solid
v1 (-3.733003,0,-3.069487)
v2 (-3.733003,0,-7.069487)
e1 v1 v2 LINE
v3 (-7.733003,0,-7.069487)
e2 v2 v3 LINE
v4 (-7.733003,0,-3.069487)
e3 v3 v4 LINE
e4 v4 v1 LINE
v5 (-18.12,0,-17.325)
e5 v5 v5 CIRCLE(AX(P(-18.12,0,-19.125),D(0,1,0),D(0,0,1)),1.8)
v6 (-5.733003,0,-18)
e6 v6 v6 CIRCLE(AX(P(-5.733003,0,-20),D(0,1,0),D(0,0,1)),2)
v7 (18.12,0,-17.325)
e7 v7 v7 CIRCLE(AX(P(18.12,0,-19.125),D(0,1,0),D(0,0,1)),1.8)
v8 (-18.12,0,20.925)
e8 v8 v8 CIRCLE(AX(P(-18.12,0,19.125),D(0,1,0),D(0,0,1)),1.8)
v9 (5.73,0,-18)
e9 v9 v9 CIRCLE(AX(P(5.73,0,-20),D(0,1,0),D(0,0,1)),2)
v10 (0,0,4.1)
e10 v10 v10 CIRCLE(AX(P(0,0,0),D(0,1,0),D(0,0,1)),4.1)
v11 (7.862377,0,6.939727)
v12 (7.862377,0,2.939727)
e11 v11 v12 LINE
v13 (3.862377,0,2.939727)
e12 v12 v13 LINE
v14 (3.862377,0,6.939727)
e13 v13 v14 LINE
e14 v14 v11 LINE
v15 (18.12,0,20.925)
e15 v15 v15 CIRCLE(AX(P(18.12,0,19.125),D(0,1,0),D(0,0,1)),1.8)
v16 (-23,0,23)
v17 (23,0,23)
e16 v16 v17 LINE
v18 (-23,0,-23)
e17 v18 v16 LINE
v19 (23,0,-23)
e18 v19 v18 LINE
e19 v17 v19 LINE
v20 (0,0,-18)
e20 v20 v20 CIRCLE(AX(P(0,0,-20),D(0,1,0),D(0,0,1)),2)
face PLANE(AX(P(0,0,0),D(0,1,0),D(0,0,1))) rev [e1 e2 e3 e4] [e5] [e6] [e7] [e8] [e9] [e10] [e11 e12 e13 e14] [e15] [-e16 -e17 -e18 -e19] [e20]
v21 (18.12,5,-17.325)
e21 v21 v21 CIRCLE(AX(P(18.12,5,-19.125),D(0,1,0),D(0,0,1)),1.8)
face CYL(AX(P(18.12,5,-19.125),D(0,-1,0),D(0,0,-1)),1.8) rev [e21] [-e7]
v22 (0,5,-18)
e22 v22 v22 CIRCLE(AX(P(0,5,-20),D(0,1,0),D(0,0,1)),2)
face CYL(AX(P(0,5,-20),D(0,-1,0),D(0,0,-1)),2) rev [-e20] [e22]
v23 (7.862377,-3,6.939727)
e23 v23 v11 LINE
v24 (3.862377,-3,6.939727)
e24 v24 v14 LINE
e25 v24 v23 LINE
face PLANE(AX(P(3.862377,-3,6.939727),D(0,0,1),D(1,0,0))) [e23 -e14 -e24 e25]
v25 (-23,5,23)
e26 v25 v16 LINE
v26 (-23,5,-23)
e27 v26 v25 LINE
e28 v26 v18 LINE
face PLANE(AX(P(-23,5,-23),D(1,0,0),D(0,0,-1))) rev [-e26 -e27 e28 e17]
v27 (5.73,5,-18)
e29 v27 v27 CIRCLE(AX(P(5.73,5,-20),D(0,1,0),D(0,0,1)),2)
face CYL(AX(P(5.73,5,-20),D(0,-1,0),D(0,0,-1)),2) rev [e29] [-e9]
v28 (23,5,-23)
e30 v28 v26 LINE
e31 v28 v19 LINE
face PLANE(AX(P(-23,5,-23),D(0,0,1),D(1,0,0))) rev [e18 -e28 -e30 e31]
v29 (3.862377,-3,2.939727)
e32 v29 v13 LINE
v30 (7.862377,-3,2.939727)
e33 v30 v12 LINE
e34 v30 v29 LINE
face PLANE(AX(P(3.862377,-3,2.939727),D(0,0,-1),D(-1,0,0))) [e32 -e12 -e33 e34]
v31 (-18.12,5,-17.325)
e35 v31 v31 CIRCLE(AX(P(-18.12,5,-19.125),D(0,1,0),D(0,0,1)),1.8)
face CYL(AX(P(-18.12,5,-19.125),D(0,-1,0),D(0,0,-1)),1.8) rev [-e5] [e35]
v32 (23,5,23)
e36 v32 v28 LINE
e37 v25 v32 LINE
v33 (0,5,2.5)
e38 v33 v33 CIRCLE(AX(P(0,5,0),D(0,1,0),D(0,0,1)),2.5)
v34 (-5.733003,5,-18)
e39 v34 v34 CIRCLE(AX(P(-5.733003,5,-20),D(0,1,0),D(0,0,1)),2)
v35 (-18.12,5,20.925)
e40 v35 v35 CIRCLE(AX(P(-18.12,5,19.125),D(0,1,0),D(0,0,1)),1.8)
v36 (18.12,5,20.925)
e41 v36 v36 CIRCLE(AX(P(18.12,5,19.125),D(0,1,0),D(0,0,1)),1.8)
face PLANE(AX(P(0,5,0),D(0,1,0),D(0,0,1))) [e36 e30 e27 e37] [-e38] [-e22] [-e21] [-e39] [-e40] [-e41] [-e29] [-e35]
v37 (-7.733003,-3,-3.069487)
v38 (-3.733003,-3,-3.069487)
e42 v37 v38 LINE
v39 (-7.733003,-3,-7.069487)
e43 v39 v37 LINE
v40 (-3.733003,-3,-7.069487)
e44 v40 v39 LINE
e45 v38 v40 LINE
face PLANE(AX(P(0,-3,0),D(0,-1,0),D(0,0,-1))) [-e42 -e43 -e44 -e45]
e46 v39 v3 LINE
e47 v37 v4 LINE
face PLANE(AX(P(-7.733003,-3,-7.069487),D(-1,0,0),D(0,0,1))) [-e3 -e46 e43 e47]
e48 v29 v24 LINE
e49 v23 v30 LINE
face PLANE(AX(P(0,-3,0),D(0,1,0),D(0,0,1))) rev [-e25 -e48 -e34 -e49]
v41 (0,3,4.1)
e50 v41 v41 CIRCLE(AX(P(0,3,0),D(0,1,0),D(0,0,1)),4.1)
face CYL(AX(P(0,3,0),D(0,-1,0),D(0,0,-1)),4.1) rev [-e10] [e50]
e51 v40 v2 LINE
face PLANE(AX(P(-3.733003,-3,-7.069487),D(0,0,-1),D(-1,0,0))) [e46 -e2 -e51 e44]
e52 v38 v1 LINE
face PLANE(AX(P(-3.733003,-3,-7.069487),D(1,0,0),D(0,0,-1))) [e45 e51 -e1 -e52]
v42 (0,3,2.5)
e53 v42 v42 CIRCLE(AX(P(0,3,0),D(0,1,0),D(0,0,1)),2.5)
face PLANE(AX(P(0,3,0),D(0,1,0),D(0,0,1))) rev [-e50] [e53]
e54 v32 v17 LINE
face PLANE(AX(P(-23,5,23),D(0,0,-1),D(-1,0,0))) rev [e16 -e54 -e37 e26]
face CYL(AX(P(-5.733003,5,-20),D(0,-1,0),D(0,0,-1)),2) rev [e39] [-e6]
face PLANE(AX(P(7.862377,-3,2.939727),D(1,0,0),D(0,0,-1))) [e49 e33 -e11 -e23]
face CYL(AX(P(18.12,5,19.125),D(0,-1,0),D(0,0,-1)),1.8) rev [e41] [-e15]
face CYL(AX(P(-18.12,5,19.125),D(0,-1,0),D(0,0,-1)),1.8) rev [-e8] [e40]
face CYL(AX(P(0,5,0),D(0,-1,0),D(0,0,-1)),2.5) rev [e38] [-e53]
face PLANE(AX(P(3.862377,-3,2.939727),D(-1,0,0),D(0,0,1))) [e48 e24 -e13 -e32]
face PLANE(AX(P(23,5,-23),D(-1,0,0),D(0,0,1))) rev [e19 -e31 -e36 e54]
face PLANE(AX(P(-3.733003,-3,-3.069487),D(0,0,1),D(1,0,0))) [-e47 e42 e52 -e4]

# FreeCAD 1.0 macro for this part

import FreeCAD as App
import Part
import Sketcher


def add_polygon(sketch, points):
    """Adds a closed chain of lines whose ends are joined by coincident constraints."""
    first, n = sketch.GeometryCount, len(points)
    for a, b in zip(points, points[1:] + points[:1]):
        sketch.addGeometry(Part.LineSegment(App.Vector(*a, 0), App.Vector(*b, 0)), False)
    for i in range(n):
        sketch.addConstraint(Sketcher.Constraint("Coincident", first + i, 2, first + (i + 1) % n, 1))

doc = App.newDocument("Part")
body = doc.addObject("PartDesign::Body", "Body")

sketch1 = doc.addObject("Sketcher::SketchObject", "Sketch")
body.addObject(sketch1)
sketch1.AttachmentSupport = (doc.XZ_Plane, [""])
sketch1.MapMode = "FlatFace"
add_polygon(sketch1, [(-23, -23), (-23, 23), (23, 23), (23, -23)])
sketch1.addConstraint([
    Sketcher.Constraint("Vertical", 0),
    Sketcher.Constraint("Horizontal", 1),
    Sketcher.Constraint("Vertical", 2),
    Sketcher.Constraint("Horizontal", 3),
    Sketcher.Constraint("Symmetric", 0, 2, 2, 2, -1, 1),
    Sketcher.Constraint("Equal", 3, 0),
    Sketcher.Constraint("DistanceX", 1, 1, 1, 2, 46.0),
])
pad1 = doc.addObject("PartDesign::Pad", "Pad")
body.addObject(pad1)
pad1.Profile = sketch1
pad1.Length = 5
pad1.Reversed = True

sketch2 = doc.addObject("Sketcher::SketchObject", "Sketch001")
body.addObject(sketch2)
sketch2.AttachmentSupport = (doc.XZ_Plane, [""])
sketch2.MapMode = "FlatFace"
sketch2.addGeometry([
    Part.Circle(App.Vector(-18.1, -19.1, 0), App.Vector(0, 0, 1), 1.8),
    Part.Circle(App.Vector(18.1, -19.1, 0), App.Vector(0, 0, 1), 1.8),
    Part.Circle(App.Vector(18.1, 19.1, 0), App.Vector(0, 0, 1), 1.8),
    Part.Circle(App.Vector(-18.1, 19.1, 0), App.Vector(0, 0, 1), 1.8),
    Part.Circle(App.Vector(0, 0, 0), App.Vector(0, 0, 1), 2.5),
], False)
sketch2.addConstraint([
    Sketcher.Constraint("Coincident", 4, 3, -1, 1),
    Sketcher.Constraint("Equal", 0, 1),
    Sketcher.Constraint("Equal", 1, 2),
    Sketcher.Constraint("Equal", 2, 3),
    Sketcher.Constraint("Symmetric", 0, 3, 2, 3, -1, 1),
    Sketcher.Constraint("Symmetric", 1, 3, 3, 3, -1, 1),
    Sketcher.Constraint("Symmetric", 0, 3, 1, 3, -2),
    Sketcher.Constraint("Diameter", 4, 5.0),
    Sketcher.Constraint("Diameter", 0, 3.6),
    Sketcher.Constraint("DistanceX", 0, 3, -1, 1, 18.12),
    Sketcher.Constraint("DistanceY", 1, 3, 2, 3, 38.25),
])
pocket1 = doc.addObject("PartDesign::Pocket", "Pocket")
body.addObject(pocket1)
pocket1.Profile = sketch2
pocket1.Length = 5

sketch3 = doc.addObject("Sketcher::SketchObject", "Sketch002")
body.addObject(sketch3)
sketch3.AttachmentSupport = (doc.XZ_Plane, [""])
sketch3.MapMode = "FlatFace"
sketch3.addGeometry(Part.Circle(App.Vector(0, 0, 0), App.Vector(0, 0, 1), 4.1), False)
sketch3.addConstraint([
    Sketcher.Constraint("Coincident", 0, 3, -1, 1),
    Sketcher.Constraint("Diameter", 0, 8.2),
])
pocket2 = doc.addObject("PartDesign::Pocket", "Pocket001")
body.addObject(pocket2)
pocket2.Profile = sketch3
pocket2.Length = 3

sketch4 = doc.addObject("Sketcher::SketchObject", "Sketch003")
body.addObject(sketch4)
sketch4.AttachmentSupport = (doc.XZ_Plane, [""])
sketch4.MapMode = "FlatFace"
add_polygon(sketch4, [(-7.7, -7.1), (-7.7, -3.1), (-3.7, -3.1), (-3.7, -7.1)])
add_polygon(sketch4, [(3.9, 2.9), (3.9, 6.9), (7.9, 6.9), (7.9, 2.9)])
sketch4.addConstraint([
    Sketcher.Constraint("Vertical", 0),
    Sketcher.Constraint("Horizontal", 1),
    Sketcher.Constraint("Vertical", 2),
    Sketcher.Constraint("Horizontal", 3),
    Sketcher.Constraint("Vertical", 4),
    Sketcher.Constraint("Horizontal", 5),
    Sketcher.Constraint("Vertical", 6),
    Sketcher.Constraint("Horizontal", 7),
    Sketcher.Constraint("Equal", 3, 5),
    Sketcher.Constraint("Equal", 7, 0),
    Sketcher.Constraint("Equal", 2, 4),
    Sketcher.Constraint("DistanceX", 1, 1, 1, 2, 4.0),
    Sketcher.Constraint("DistanceX", 1, 2, 4, 2, 7.595379),
    Sketcher.Constraint("DistanceX", 0, 2, -1, 1, 7.733003),
    Sketcher.Constraint("DistanceY", 0, 2, -1, 1, 3.069487),
    Sketcher.Constraint("DistanceY", -1, 1, 4, 2, 6.939727),
])
pad2 = doc.addObject("PartDesign::Pad", "Pad001")
body.addObject(pad2)
pad2.Profile = sketch4
pad2.Length = 3

sketch5 = doc.addObject("Sketcher::SketchObject", "Sketch004")
body.addObject(sketch5)
sketch5.AttachmentSupport = (doc.XZ_Plane, [""])
sketch5.MapMode = "FlatFace"
sketch5.addGeometry([
    Part.Circle(App.Vector(-5.7, -20, 0), App.Vector(0, 0, 1), 2),
    Part.Circle(App.Vector(5.7, -20, 0), App.Vector(0, 0, 1), 2),
    Part.Circle(App.Vector(0, -20, 0), App.Vector(0, 0, 1), 2),
], False)
sketch5.addConstraint([
    Sketcher.Constraint("Equal", 0, 1),
    Sketcher.Constraint("Equal", 1, 2),
    Sketcher.Constraint("PointOnObject", 2, 3, -2),
    Sketcher.Constraint("Horizontal", 0, 3, 1, 3),
    Sketcher.Constraint("Horizontal", 1, 3, 2, 3),
    Sketcher.Constraint("Diameter", 0, 4.0),
    Sketcher.Constraint("DistanceY", 0, 3, -1, 1, 20.0),
    Sketcher.Constraint("DistanceX", -1, 1, 1, 3, 5.73),
    Sketcher.Constraint("DistanceX", 0, 3, -1, 1, 5.733003),
])
pocket3 = doc.addObject("PartDesign::Pocket", "Pocket002")
body.addObject(pocket3)
pocket3.Profile = sketch5
pocket3.Type = "ThroughAll"

doc.recompute()
